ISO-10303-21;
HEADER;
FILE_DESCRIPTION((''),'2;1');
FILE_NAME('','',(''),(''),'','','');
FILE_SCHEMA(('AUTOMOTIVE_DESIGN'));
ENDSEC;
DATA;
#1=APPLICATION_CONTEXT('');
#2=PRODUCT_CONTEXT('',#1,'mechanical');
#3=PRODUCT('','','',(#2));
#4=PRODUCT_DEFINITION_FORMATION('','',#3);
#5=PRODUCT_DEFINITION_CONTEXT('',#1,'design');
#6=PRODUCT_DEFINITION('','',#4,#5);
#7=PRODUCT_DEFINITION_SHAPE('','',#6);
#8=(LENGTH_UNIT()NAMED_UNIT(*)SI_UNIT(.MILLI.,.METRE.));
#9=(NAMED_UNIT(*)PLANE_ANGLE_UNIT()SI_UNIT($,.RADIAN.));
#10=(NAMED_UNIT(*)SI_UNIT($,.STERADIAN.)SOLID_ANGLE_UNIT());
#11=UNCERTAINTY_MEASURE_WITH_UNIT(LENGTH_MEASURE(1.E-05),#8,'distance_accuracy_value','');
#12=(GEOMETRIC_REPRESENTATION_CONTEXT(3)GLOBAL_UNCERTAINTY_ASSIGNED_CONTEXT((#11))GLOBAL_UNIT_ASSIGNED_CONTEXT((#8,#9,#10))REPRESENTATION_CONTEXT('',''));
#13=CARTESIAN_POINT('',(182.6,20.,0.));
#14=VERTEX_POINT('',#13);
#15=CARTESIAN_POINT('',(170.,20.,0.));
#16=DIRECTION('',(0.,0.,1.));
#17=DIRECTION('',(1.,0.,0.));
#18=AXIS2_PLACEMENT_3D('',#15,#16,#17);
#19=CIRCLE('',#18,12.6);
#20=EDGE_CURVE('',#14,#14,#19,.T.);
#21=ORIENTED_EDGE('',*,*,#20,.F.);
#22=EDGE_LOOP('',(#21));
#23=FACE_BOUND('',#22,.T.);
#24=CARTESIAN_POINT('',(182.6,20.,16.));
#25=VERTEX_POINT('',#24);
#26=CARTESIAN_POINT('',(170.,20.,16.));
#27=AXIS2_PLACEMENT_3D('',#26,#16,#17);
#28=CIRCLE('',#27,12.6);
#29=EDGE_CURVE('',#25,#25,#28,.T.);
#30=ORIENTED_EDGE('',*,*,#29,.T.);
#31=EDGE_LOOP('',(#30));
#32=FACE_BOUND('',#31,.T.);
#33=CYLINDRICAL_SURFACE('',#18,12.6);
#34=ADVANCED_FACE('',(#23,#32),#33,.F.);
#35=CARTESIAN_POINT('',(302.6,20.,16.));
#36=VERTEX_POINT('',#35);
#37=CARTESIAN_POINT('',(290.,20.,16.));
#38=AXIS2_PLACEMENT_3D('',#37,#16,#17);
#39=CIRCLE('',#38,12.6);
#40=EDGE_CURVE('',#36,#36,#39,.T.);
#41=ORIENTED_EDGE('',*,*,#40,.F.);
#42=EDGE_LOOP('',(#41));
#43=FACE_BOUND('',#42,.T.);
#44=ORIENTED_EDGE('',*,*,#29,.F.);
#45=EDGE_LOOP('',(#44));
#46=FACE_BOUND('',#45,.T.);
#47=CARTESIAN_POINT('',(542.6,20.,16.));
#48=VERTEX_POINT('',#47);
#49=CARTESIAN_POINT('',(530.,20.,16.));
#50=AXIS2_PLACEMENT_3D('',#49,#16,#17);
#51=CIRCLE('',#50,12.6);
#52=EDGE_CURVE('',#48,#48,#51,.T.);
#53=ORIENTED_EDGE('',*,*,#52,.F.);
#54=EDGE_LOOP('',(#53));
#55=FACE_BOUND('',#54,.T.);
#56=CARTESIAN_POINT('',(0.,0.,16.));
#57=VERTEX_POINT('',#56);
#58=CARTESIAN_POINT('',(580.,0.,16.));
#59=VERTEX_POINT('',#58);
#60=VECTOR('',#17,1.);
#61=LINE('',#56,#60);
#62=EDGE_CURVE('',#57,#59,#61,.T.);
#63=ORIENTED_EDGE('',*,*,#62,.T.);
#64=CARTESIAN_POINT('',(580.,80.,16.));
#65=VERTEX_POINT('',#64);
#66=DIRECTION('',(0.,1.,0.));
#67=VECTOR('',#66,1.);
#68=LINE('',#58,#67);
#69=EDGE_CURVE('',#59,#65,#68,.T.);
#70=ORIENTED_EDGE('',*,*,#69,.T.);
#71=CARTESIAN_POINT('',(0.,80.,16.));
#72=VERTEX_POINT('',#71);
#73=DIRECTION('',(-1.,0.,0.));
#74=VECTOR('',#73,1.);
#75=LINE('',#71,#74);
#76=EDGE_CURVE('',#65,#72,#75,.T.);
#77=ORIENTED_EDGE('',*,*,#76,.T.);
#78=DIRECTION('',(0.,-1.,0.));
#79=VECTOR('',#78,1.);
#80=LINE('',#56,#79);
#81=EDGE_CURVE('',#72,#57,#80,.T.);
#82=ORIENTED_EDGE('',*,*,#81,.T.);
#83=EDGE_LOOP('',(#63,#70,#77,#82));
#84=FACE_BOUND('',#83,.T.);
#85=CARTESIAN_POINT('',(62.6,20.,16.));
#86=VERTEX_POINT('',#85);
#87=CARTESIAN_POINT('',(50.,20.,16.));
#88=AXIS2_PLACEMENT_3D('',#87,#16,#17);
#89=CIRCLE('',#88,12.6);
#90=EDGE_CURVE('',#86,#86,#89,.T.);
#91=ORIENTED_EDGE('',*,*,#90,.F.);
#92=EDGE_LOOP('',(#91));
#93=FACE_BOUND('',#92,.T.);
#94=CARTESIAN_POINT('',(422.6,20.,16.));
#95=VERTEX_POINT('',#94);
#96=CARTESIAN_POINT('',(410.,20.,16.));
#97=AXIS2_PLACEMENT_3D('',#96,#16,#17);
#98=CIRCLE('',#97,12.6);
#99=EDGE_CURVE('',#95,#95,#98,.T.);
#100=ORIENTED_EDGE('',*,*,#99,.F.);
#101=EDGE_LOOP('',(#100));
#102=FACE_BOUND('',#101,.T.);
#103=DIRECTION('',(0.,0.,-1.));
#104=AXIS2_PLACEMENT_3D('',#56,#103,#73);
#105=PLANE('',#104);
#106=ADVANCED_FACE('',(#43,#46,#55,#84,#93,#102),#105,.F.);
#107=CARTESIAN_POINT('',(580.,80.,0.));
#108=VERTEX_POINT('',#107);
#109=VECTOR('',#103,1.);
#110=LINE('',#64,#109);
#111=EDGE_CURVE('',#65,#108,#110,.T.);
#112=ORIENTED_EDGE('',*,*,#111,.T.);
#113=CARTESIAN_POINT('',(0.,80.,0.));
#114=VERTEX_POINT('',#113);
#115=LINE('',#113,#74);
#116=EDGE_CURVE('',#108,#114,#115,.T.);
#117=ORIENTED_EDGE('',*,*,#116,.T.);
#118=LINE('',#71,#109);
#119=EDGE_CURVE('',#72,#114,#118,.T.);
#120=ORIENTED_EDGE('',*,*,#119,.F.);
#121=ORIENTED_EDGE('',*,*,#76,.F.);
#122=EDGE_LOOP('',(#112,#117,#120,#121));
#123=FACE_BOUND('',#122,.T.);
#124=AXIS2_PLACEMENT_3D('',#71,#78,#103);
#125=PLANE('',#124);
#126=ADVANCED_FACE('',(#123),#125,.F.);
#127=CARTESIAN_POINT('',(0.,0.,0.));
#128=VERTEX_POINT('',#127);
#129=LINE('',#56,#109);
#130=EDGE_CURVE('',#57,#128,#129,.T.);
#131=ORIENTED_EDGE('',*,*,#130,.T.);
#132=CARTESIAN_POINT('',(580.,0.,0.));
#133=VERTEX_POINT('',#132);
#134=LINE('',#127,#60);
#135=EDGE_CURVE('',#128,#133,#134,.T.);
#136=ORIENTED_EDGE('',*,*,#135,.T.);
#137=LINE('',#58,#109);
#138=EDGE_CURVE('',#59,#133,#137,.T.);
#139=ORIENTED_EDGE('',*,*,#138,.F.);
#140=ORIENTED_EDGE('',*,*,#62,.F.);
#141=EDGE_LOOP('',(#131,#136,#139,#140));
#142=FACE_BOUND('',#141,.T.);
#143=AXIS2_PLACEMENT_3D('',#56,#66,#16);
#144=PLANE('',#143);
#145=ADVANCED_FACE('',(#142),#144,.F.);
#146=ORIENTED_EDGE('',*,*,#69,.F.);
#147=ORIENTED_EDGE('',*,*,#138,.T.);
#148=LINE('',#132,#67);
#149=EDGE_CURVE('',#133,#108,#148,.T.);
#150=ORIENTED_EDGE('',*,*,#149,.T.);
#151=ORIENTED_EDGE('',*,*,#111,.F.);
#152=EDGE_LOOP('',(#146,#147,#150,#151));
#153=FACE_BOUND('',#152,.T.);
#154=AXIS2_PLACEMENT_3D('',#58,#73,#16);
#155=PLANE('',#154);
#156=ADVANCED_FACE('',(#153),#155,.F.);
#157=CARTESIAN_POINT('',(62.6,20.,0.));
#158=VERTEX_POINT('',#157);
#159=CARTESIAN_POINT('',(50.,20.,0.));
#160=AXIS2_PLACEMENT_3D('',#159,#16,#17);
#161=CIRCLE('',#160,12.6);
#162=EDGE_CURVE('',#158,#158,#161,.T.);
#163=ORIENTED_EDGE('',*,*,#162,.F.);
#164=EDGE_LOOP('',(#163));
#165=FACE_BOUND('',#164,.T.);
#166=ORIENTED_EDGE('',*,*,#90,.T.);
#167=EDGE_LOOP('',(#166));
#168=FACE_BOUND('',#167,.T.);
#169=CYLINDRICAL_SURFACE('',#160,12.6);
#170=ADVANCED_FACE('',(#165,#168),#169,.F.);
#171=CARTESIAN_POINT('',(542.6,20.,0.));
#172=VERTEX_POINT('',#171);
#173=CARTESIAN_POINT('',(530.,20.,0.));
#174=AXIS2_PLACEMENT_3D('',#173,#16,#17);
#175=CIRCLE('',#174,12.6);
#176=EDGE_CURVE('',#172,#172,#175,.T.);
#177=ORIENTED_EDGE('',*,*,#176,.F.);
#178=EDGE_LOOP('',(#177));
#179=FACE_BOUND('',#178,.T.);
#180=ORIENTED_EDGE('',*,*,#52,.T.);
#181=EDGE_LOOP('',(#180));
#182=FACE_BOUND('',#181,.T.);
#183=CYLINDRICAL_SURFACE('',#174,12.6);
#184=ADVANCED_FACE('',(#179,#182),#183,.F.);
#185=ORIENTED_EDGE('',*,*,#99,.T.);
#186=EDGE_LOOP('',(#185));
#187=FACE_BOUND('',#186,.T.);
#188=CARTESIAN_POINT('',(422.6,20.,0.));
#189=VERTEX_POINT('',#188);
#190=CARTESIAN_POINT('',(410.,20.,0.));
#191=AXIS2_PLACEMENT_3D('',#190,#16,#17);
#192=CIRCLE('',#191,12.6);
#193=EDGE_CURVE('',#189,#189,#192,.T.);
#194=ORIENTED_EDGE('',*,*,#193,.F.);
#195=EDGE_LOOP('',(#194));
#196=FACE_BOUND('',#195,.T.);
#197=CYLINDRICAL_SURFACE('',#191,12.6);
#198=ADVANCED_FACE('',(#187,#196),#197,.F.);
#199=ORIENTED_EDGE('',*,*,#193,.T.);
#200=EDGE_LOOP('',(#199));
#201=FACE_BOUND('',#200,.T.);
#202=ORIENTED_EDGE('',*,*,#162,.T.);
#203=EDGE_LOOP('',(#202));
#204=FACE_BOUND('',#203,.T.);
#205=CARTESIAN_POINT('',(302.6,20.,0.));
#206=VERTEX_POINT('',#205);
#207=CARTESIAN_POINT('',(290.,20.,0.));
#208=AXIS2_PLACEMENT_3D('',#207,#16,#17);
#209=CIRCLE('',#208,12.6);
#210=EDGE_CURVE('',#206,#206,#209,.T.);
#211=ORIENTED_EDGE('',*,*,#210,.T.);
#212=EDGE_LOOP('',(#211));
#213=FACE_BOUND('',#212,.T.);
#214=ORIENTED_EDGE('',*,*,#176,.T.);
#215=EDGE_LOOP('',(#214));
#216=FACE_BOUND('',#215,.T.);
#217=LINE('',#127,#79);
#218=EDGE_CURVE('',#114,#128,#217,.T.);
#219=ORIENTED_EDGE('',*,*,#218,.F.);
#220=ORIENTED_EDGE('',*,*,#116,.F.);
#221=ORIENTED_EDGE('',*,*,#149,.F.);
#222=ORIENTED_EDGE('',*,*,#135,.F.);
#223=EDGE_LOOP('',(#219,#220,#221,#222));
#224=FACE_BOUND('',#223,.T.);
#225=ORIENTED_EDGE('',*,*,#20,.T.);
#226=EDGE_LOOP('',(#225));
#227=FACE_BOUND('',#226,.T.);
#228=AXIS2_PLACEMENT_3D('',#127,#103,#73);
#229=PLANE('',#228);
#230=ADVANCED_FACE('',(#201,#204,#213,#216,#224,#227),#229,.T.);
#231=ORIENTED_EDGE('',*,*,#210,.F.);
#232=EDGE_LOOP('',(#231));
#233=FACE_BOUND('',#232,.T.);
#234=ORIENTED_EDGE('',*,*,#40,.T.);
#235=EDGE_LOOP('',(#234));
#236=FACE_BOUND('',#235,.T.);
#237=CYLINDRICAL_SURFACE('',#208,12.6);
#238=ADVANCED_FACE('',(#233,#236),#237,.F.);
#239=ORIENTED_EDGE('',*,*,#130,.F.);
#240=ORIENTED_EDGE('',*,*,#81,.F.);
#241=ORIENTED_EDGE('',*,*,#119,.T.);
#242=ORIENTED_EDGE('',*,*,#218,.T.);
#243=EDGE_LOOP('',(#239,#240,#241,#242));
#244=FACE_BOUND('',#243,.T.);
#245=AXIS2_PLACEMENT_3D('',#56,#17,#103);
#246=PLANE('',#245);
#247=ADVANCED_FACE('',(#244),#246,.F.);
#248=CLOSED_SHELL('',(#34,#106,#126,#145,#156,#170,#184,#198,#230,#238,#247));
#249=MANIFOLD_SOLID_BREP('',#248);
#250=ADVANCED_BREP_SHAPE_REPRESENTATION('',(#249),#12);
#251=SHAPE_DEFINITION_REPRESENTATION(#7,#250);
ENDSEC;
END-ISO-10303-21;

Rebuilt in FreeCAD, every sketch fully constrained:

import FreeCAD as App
import Part
import Sketcher
from FreeCAD import Vector

doc = App.newDocument("Part")
body = doc.addObject("PartDesign::Body", "Body")

sketch1 = body.newObject("Sketcher::SketchObject", "Sketch")
sketch1.AttachmentSupport = (doc.getObject("XY_Plane"), [""])
sketch1.MapMode = "FlatFace"
sketch1.addGeometry(Part.LineSegment(Vector(0, 80, 0), Vector(0, 0, 0)), False)
sketch1.addGeometry(Part.LineSegment(Vector(0, 0, 0), Vector(580, 0, 0)), False)
sketch1.addGeometry(Part.LineSegment(Vector(580, 0, 0), Vector(580, 80, 0)), False)
sketch1.addGeometry(Part.LineSegment(Vector(580, 80, 0), Vector(0, 80, 0)), False)
sketch1.addConstraint(Sketcher.Constraint("Coincident", 0, 2, 1, 1))
sketch1.addConstraint(Sketcher.Constraint("Coincident", 1, 2, 2, 1))
sketch1.addConstraint(Sketcher.Constraint("Coincident", 2, 2, 3, 1))
sketch1.addConstraint(Sketcher.Constraint("Coincident", 3, 2, 0, 1))
sketch1.addConstraint(Sketcher.Constraint("Vertical", 0))
sketch1.addConstraint(Sketcher.Constraint("Horizontal", 1))
sketch1.addConstraint(Sketcher.Constraint("Vertical", 2))
sketch1.addConstraint(Sketcher.Constraint("Horizontal", 3))
sketch1.addConstraint(Sketcher.Constraint("Coincident", 0, 2, -1, 1))
sketch1.addConstraint(Sketcher.Constraint("DistanceX", 1, 1, 1, 2, 580.0))
sketch1.addConstraint(Sketcher.Constraint("DistanceY", 0, 2, 0, 1, 80.0))
pad1 = body.newObject("PartDesign::Pad", "Pad")
pad1.Profile = sketch1
pad1.Length = 16

sketch2 = body.newObject("Sketcher::SketchObject", "Sketch001")
sketch2.AttachmentSupport = (doc.getObject("XY_Plane"), [""])
sketch2.MapMode = "FlatFace"
sketch2.AttachmentOffset = App.Placement(Vector(0, 0, 16), App.Rotation())
sketch2.addGeometry(Part.Circle(Vector(50, 20, 0), Vector(0, 0, 1), 13), False)
sketch2.addConstraint(Sketcher.Constraint("Diameter", 0, 25.2))
sketch2.addConstraint(Sketcher.Constraint("DistanceX", -1, 1, 0, 3, 50.0))
sketch2.addConstraint(Sketcher.Constraint("DistanceY", -1, 1, 0, 3, 20.0))
pocket1 = body.newObject("PartDesign::Pocket", "Pocket")
pocket1.Profile = sketch2
pocket1.Length = 16

sketch3 = body.newObject("Sketcher::SketchObject", "Sketch002")
sketch3.AttachmentSupport = (doc.getObject("XY_Plane"), [""])
sketch3.MapMode = "FlatFace"
sketch3.AttachmentOffset = App.Placement(Vector(0, 0, 16), App.Rotation())
sketch3.addGeometry(Part.Circle(Vector(170, 20, 0), Vector(0, 0, 1), 13), False)
sketch3.addConstraint(Sketcher.Constraint("Diameter", 0, 25.2))
sketch3.addConstraint(Sketcher.Constraint("DistanceX", -1, 1, 0, 3, 170.0))
sketch3.addConstraint(Sketcher.Constraint("DistanceY", -1, 1, 0, 3, 20.0))
pocket2 = body.newObject("PartDesign::Pocket", "Pocket001")
pocket2.Profile = sketch3
pocket2.Length = 16

sketch4 = body.newObject("Sketcher::SketchObject", "Sketch003")
sketch4.AttachmentSupport = (doc.getObject("XY_Plane"), [""])
sketch4.MapMode = "FlatFace"
sketch4.AttachmentOffset = App.Placement(Vector(0, 0, 16), App.Rotation())
sketch4.addGeometry(Part.Circle(Vector(290, 20, 0), Vector(0, 0, 1), 13), False)
sketch4.addGeometry(Part.Circle(Vector(410, 20, 0), Vector(0, 0, 1), 13), False)
sketch4.addGeometry(Part.Circle(Vector(530, 20, 0), Vector(0, 0, 1), 13), False)
sketch4.addConstraint(Sketcher.Constraint("Equal", 0, 1))
sketch4.addConstraint(Sketcher.Constraint("Equal", 1, 2))
sketch4.addConstraint(Sketcher.Constraint("Horizontal", 0, 3, 1, 3))
sketch4.addConstraint(Sketcher.Constraint("Horizontal", 1, 3, 2, 3))
sketch4.addConstraint(Sketcher.Constraint("Diameter", 0, 25.2))
sketch4.addConstraint(Sketcher.Constraint("DistanceX", -1, 1, 0, 3, 290.0))
sketch4.addConstraint(Sketcher.Constraint("DistanceY", -1, 1, 0, 3, 20.0))
sketch4.addConstraint(Sketcher.Constraint("DistanceX", -1, 1, 1, 3, 410.0))
sketch4.addConstraint(Sketcher.Constraint("DistanceX", -1, 1, 2, 3, 530.0))
pocket3 = body.newObject("PartDesign::Pocket", "Pocket002")
pocket3.Profile = sketch4
pocket3.Length = 16

doc.recompute()
